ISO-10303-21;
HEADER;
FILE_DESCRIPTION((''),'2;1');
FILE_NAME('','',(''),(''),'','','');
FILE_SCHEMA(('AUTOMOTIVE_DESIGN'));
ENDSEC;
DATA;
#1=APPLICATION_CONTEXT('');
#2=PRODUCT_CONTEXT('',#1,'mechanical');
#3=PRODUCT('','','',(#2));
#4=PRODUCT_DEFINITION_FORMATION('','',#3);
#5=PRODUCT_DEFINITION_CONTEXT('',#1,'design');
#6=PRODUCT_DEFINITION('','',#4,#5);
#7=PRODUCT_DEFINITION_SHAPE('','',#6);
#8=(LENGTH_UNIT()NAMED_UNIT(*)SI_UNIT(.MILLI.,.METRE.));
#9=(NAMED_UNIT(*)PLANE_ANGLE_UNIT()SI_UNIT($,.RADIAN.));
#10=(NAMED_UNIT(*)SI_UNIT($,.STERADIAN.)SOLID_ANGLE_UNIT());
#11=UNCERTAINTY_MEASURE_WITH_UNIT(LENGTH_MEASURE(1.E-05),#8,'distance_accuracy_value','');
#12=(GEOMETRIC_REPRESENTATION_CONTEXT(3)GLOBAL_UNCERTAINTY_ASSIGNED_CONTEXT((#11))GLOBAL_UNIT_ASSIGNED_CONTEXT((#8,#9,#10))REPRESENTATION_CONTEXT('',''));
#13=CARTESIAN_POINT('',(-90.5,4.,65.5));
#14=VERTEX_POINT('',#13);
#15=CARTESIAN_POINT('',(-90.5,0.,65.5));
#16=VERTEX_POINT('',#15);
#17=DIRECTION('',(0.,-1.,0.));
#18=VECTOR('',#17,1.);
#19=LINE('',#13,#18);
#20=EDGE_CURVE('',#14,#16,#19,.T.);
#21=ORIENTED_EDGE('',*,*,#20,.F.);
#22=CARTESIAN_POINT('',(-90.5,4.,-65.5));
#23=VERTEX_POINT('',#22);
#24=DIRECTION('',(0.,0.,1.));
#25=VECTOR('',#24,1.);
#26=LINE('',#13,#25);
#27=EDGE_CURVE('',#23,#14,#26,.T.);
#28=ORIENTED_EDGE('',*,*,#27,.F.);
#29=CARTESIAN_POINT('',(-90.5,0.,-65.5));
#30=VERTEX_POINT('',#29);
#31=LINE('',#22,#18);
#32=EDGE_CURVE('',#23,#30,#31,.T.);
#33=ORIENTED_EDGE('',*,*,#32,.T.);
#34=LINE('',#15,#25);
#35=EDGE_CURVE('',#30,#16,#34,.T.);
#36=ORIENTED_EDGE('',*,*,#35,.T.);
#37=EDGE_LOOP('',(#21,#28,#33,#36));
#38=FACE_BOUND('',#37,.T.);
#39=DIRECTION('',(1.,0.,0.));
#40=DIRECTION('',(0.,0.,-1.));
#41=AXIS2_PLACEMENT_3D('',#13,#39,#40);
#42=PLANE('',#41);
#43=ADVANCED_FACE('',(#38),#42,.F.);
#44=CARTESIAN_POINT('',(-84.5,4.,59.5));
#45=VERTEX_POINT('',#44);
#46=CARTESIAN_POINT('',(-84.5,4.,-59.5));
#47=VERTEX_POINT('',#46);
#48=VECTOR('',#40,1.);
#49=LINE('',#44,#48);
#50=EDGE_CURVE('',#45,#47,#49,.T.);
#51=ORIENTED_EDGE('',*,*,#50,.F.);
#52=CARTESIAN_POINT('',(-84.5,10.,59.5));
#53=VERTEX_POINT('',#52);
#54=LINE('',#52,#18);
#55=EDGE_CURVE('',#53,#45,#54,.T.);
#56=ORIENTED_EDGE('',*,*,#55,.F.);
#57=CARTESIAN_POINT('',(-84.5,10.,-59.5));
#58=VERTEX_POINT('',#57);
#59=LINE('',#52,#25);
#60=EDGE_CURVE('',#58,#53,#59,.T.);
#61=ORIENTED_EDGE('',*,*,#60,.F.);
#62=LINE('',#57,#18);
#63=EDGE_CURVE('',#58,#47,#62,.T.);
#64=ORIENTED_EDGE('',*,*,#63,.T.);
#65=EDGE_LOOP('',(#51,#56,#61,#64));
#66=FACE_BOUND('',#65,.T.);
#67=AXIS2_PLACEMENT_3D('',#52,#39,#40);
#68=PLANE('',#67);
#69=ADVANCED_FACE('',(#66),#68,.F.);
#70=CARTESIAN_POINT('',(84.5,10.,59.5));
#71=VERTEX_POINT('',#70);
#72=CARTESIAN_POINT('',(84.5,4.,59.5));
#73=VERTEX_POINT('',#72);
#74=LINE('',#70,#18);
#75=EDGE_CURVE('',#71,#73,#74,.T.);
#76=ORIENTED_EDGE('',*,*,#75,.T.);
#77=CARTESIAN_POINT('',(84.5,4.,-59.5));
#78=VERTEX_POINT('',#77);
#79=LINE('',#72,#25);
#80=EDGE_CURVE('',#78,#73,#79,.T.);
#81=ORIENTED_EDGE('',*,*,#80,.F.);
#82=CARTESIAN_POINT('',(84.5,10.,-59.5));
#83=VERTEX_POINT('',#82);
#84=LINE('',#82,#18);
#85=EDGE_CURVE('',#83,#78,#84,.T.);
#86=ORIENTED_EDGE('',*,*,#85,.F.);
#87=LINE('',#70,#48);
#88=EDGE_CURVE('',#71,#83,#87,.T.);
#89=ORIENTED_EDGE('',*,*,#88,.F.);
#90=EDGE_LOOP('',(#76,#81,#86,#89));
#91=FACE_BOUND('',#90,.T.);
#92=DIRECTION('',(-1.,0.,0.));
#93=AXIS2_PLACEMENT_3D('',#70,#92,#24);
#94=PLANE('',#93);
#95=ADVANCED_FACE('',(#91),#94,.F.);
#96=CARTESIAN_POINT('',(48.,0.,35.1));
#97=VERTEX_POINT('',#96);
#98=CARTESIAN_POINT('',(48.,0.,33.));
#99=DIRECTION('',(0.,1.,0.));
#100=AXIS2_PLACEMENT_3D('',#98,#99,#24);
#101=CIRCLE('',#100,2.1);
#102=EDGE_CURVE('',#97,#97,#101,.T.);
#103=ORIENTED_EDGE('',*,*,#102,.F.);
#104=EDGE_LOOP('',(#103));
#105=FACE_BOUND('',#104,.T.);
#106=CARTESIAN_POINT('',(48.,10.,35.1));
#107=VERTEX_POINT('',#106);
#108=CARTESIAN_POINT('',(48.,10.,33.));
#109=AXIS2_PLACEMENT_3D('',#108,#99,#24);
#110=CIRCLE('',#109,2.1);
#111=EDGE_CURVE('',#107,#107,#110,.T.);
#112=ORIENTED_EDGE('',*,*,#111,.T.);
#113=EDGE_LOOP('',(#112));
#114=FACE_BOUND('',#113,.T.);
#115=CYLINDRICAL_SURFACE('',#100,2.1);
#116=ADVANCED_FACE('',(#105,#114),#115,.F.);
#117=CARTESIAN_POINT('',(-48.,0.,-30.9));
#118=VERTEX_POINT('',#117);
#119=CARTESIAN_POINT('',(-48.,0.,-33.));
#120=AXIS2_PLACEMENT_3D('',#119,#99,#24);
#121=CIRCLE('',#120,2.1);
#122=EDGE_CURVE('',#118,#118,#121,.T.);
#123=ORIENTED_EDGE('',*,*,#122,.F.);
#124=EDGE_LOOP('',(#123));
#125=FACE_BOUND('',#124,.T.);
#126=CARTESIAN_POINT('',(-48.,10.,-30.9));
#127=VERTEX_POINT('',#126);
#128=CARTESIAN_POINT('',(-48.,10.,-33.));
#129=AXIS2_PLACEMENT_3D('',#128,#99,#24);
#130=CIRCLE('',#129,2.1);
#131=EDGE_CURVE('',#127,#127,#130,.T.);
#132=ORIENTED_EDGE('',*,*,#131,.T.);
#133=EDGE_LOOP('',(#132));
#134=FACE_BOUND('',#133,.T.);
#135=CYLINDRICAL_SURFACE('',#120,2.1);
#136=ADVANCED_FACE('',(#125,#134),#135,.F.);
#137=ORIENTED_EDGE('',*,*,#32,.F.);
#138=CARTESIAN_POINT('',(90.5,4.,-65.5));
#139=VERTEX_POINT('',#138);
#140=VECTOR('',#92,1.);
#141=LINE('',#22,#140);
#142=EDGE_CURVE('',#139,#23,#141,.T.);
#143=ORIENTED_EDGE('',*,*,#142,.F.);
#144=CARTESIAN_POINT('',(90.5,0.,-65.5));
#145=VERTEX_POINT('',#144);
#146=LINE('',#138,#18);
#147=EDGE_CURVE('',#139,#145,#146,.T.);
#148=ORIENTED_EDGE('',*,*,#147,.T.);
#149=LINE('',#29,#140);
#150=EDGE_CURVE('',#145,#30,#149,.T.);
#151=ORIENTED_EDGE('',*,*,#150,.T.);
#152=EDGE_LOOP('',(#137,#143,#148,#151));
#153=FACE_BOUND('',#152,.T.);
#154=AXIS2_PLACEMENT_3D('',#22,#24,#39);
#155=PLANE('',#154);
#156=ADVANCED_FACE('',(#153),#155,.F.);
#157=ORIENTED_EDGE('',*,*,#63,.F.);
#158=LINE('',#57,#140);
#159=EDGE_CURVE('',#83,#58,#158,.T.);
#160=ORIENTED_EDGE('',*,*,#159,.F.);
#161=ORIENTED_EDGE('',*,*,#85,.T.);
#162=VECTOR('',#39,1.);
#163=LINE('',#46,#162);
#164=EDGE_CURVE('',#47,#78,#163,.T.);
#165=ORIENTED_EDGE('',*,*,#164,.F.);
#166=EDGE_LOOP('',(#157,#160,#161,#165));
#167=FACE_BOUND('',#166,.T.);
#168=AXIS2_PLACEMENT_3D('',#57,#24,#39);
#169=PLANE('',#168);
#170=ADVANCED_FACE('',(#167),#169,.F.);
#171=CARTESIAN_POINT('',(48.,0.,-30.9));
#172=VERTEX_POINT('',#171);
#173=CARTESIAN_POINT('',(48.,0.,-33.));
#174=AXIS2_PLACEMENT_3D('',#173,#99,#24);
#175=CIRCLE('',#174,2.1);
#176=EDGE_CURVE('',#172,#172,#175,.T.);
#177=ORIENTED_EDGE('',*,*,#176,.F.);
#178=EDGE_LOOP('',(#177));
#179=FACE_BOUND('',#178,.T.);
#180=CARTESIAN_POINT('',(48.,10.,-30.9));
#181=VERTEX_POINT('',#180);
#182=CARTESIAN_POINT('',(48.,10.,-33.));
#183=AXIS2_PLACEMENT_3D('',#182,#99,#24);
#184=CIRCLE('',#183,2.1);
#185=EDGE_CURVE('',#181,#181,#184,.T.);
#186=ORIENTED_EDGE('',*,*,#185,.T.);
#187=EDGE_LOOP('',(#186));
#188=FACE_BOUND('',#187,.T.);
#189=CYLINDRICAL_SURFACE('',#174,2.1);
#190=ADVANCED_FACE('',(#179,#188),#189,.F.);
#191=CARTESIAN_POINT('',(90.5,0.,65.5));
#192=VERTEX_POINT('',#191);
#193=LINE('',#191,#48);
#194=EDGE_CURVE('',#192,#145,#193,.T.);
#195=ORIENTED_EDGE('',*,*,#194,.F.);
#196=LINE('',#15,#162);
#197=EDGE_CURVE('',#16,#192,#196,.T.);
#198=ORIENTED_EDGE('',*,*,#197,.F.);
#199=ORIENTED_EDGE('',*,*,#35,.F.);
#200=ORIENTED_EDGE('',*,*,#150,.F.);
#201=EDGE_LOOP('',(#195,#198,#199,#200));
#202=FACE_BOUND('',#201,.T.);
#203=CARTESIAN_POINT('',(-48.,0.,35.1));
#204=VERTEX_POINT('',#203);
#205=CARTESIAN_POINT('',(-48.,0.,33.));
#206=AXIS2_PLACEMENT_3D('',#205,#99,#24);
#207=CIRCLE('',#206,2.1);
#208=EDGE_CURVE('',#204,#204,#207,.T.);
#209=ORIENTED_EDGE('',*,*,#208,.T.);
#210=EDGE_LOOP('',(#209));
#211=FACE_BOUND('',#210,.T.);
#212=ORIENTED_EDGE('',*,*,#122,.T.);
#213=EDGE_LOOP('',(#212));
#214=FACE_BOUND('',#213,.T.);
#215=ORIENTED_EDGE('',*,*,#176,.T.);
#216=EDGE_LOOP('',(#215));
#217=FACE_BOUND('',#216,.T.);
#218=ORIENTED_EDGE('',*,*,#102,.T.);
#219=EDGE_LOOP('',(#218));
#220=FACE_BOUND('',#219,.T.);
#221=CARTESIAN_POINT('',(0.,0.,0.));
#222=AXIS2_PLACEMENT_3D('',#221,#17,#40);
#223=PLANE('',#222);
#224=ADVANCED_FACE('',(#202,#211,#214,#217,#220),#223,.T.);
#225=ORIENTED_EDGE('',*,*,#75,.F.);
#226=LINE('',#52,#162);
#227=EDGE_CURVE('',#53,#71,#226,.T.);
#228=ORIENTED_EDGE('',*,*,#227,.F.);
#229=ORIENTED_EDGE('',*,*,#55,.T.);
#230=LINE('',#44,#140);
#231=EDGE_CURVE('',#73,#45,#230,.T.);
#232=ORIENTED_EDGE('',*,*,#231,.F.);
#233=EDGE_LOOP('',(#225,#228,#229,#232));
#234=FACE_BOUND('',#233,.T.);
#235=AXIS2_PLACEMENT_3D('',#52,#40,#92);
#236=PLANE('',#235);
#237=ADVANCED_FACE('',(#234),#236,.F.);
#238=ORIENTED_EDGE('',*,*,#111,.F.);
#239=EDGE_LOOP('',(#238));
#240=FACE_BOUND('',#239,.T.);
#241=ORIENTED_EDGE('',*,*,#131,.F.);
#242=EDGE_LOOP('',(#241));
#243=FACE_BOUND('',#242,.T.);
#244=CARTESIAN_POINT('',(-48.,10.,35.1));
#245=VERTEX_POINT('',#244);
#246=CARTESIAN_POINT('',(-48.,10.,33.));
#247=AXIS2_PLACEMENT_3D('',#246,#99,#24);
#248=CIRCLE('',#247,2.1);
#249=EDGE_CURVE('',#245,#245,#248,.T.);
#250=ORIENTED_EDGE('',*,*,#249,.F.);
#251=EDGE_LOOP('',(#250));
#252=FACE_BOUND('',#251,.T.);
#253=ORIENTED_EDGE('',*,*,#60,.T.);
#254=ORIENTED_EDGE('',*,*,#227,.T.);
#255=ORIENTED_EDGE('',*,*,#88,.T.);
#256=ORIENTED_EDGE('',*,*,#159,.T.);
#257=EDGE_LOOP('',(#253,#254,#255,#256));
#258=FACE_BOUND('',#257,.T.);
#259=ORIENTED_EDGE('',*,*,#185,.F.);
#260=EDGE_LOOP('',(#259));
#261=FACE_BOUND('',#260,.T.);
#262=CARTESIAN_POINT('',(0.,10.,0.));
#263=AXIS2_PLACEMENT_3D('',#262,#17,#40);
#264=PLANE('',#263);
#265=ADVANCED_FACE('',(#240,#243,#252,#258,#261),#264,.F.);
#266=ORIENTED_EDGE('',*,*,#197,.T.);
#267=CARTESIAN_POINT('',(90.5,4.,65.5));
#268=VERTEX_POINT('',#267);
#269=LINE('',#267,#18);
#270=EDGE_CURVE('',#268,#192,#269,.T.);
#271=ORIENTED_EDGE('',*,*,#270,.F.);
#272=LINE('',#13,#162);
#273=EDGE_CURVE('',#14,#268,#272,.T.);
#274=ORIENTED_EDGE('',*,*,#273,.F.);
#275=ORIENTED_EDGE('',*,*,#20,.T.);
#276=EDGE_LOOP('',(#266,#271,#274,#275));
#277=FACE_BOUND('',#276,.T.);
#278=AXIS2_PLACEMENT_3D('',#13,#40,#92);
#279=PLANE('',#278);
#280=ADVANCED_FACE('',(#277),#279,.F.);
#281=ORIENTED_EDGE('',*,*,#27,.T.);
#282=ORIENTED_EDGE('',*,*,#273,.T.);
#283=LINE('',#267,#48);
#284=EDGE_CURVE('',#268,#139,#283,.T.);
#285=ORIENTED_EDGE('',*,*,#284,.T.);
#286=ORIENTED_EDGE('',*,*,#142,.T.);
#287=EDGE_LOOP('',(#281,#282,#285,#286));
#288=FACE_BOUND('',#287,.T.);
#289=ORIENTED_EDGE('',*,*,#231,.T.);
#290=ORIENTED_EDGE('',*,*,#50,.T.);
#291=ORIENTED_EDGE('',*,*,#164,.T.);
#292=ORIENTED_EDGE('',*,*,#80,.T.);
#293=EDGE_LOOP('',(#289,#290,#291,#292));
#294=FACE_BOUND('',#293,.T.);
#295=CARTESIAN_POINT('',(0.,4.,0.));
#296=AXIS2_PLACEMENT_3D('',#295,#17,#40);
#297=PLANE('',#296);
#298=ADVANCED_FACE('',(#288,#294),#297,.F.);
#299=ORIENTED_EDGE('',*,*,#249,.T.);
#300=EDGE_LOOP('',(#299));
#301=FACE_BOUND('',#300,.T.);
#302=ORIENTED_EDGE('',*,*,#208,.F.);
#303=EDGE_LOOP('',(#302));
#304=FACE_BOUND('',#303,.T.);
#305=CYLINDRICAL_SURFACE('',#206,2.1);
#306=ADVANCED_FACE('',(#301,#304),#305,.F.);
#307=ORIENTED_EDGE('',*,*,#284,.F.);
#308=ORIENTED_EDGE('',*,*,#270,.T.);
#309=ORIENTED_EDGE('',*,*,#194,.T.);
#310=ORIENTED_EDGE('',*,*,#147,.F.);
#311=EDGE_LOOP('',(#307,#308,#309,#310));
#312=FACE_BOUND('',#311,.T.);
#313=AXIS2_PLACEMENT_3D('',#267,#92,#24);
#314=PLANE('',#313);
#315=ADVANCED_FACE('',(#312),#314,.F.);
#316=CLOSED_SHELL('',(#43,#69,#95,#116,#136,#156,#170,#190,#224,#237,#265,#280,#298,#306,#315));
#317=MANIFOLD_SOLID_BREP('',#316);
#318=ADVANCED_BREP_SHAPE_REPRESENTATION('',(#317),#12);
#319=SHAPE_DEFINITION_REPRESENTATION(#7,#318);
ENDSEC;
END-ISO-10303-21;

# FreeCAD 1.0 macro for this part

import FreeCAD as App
import Part
import Sketcher
from FreeCAD import Vector
Q = App.Units.Quantity

doc = App.newDocument("Part")
body = doc.addObject("PartDesign::Body", "Body")

# Sketch on XZ plane
sketch1 = body.newObject("Sketcher::SketchObject", "Sketch")
sketch1.AttachmentSupport = (doc.getObject("XZ_Plane"), [""])
sketch1.MapMode = "FlatFace"
sketch1.addGeometry(Part.LineSegment(Vector(-84.5, -59.5, 0), Vector(-84.5, 59.5, 0)), False)
sketch1.addGeometry(Part.LineSegment(Vector(-84.5, 59.5, 0), Vector(84.5, 59.5, 0)), False)
sketch1.addGeometry(Part.LineSegment(Vector(84.5, 59.5, 0), Vector(84.5, -59.5, 0)), False)
sketch1.addGeometry(Part.LineSegment(Vector(84.5, -59.5, 0), Vector(-84.5, -59.5, 0)), False)
sketch1.addConstraint(Sketcher.Constraint("Coincident", 0, 2, 1, 1))
sketch1.addConstraint(Sketcher.Constraint("Coincident", 1, 2, 2, 1))
sketch1.addConstraint(Sketcher.Constraint("Coincident", 2, 2, 3, 1))
sketch1.addConstraint(Sketcher.Constraint("Coincident", 3, 2, 0, 1))
sketch1.addConstraint(Sketcher.Constraint("Vertical", 0))
sketch1.addConstraint(Sketcher.Constraint("Horizontal", 1))
sketch1.addConstraint(Sketcher.Constraint("Vertical", 2))
sketch1.addConstraint(Sketcher.Constraint("Horizontal", 3))
sketch1.addConstraint(Sketcher.Constraint("Symmetric", 0, 2, 2, 2, -1, 1))
sketch1.addConstraint(Sketcher.Constraint("DistanceX", 1, 1, 1, 2, Q("169 mm")))
sketch1.addConstraint(Sketcher.Constraint("DistanceY", 0, 1, 0, 2, Q("119 mm")))
pad1 = body.newObject("PartDesign::Pad", "Pad")
pad1.Profile = sketch1
pad1.Length = 10
pad1.Reversed = True

# Sketch on XZ plane
sketch2 = body.newObject("Sketcher::SketchObject", "Sketch001")
sketch2.AttachmentSupport = (doc.getObject("XZ_Plane"), [""])
sketch2.MapMode = "FlatFace"
sketch2.addGeometry(Part.LineSegment(Vector(-90.5, -65.5, 0), Vector(-90.5, 65.5, 0)), False)
sketch2.addGeometry(Part.LineSegment(Vector(-90.5, 65.5, 0), Vector(90.5, 65.5, 0)), False)
sketch2.addGeometry(Part.LineSegment(Vector(90.5, 65.5, 0), Vector(90.5, -65.5, 0)), False)
sketch2.addGeometry(Part.LineSegment(Vector(90.5, -65.5, 0), Vector(-90.5, -65.5, 0)), False)
sketch2.addConstraint(Sketcher.Constraint("Coincident", 0, 2, 1, 1))
sketch2.addConstraint(Sketcher.Constraint("Coincident", 1, 2, 2, 1))
sketch2.addConstraint(Sketcher.Constraint("Coincident", 2, 2, 3, 1))
sketch2.addConstraint(Sketcher.Constraint("Coincident", 3, 2, 0, 1))
sketch2.addConstraint(Sketcher.Constraint("Vertical", 0))
sketch2.addConstraint(Sketcher.Constraint("Horizontal", 1))
sketch2.addConstraint(Sketcher.Constraint("Vertical", 2))
sketch2.addConstraint(Sketcher.Constraint("Horizontal", 3))
sketch2.addConstraint(Sketcher.Constraint("Symmetric", 0, 2, 2, 2, -1, 1))
sketch2.addConstraint(Sketcher.Constraint("DistanceX", 1, 1, 1, 2, Q("181 mm")))
sketch2.addConstraint(Sketcher.Constraint("DistanceY", 0, 1, 0, 2, Q("131 mm")))
pad2 = body.newObject("PartDesign::Pad", "Pad001")
pad2.Profile = sketch2
pad2.Length = 4
pad2.Reversed = True

# Sketch on XZ plane
sketch3 = body.newObject("Sketcher::SketchObject", "Sketch002")
sketch3.AttachmentSupport = (doc.getObject("XZ_Plane"), [""])
sketch3.MapMode = "FlatFace"
sketch3.AttachmentOffset = App.Placement(Vector(0, 0, -10), App.Rotation())
sketch3.addGeometry(Part.Circle(Vector(-48, -33, 0), Vector(0, 0, 1), 2.1), False)
sketch3.addGeometry(Part.Circle(Vector(48, -33, 0), Vector(0, 0, 1), 2.1), False)
sketch3.addGeometry(Part.Circle(Vector(48, 33, 0), Vector(0, 0, 1), 2.1), False)
sketch3.addGeometry(Part.Circle(Vector(-48, 33, 0), Vector(0, 0, 1), 2.1), False)
sketch3.addConstraint(Sketcher.Constraint("Equal", 0, 1))
sketch3.addConstraint(Sketcher.Constraint("Equal", 1, 2))
sketch3.addConstraint(Sketcher.Constraint("Equal", 2, 3))
sketch3.addConstraint(Sketcher.Constraint("Symmetric", 0, 3, 2, 3, -1, 1))
sketch3.addConstraint(Sketcher.Constraint("Symmetric", 1, 3, 3, 3, -1, 1))
sketch3.addConstraint(Sketcher.Constraint("Symmetric", 0, 3, 1, 3, -2))
sketch3.addConstraint(Sketcher.Constraint("Diameter", 0, Q("4.2 mm")))
sketch3.addConstraint(Sketcher.Constraint("DistanceX", 0, 3, -1, 1, Q("48 mm")))
sketch3.addConstraint(Sketcher.Constraint("DistanceY", 0, 3, -1, 1, Q("33 mm")))
pocket1 = body.newObject("PartDesign::Pocket", "Pocket")
pocket1.Profile = sketch3
pocket1.Type = "ThroughAll"
pocket1.Reversed = True

doc.recompute()
